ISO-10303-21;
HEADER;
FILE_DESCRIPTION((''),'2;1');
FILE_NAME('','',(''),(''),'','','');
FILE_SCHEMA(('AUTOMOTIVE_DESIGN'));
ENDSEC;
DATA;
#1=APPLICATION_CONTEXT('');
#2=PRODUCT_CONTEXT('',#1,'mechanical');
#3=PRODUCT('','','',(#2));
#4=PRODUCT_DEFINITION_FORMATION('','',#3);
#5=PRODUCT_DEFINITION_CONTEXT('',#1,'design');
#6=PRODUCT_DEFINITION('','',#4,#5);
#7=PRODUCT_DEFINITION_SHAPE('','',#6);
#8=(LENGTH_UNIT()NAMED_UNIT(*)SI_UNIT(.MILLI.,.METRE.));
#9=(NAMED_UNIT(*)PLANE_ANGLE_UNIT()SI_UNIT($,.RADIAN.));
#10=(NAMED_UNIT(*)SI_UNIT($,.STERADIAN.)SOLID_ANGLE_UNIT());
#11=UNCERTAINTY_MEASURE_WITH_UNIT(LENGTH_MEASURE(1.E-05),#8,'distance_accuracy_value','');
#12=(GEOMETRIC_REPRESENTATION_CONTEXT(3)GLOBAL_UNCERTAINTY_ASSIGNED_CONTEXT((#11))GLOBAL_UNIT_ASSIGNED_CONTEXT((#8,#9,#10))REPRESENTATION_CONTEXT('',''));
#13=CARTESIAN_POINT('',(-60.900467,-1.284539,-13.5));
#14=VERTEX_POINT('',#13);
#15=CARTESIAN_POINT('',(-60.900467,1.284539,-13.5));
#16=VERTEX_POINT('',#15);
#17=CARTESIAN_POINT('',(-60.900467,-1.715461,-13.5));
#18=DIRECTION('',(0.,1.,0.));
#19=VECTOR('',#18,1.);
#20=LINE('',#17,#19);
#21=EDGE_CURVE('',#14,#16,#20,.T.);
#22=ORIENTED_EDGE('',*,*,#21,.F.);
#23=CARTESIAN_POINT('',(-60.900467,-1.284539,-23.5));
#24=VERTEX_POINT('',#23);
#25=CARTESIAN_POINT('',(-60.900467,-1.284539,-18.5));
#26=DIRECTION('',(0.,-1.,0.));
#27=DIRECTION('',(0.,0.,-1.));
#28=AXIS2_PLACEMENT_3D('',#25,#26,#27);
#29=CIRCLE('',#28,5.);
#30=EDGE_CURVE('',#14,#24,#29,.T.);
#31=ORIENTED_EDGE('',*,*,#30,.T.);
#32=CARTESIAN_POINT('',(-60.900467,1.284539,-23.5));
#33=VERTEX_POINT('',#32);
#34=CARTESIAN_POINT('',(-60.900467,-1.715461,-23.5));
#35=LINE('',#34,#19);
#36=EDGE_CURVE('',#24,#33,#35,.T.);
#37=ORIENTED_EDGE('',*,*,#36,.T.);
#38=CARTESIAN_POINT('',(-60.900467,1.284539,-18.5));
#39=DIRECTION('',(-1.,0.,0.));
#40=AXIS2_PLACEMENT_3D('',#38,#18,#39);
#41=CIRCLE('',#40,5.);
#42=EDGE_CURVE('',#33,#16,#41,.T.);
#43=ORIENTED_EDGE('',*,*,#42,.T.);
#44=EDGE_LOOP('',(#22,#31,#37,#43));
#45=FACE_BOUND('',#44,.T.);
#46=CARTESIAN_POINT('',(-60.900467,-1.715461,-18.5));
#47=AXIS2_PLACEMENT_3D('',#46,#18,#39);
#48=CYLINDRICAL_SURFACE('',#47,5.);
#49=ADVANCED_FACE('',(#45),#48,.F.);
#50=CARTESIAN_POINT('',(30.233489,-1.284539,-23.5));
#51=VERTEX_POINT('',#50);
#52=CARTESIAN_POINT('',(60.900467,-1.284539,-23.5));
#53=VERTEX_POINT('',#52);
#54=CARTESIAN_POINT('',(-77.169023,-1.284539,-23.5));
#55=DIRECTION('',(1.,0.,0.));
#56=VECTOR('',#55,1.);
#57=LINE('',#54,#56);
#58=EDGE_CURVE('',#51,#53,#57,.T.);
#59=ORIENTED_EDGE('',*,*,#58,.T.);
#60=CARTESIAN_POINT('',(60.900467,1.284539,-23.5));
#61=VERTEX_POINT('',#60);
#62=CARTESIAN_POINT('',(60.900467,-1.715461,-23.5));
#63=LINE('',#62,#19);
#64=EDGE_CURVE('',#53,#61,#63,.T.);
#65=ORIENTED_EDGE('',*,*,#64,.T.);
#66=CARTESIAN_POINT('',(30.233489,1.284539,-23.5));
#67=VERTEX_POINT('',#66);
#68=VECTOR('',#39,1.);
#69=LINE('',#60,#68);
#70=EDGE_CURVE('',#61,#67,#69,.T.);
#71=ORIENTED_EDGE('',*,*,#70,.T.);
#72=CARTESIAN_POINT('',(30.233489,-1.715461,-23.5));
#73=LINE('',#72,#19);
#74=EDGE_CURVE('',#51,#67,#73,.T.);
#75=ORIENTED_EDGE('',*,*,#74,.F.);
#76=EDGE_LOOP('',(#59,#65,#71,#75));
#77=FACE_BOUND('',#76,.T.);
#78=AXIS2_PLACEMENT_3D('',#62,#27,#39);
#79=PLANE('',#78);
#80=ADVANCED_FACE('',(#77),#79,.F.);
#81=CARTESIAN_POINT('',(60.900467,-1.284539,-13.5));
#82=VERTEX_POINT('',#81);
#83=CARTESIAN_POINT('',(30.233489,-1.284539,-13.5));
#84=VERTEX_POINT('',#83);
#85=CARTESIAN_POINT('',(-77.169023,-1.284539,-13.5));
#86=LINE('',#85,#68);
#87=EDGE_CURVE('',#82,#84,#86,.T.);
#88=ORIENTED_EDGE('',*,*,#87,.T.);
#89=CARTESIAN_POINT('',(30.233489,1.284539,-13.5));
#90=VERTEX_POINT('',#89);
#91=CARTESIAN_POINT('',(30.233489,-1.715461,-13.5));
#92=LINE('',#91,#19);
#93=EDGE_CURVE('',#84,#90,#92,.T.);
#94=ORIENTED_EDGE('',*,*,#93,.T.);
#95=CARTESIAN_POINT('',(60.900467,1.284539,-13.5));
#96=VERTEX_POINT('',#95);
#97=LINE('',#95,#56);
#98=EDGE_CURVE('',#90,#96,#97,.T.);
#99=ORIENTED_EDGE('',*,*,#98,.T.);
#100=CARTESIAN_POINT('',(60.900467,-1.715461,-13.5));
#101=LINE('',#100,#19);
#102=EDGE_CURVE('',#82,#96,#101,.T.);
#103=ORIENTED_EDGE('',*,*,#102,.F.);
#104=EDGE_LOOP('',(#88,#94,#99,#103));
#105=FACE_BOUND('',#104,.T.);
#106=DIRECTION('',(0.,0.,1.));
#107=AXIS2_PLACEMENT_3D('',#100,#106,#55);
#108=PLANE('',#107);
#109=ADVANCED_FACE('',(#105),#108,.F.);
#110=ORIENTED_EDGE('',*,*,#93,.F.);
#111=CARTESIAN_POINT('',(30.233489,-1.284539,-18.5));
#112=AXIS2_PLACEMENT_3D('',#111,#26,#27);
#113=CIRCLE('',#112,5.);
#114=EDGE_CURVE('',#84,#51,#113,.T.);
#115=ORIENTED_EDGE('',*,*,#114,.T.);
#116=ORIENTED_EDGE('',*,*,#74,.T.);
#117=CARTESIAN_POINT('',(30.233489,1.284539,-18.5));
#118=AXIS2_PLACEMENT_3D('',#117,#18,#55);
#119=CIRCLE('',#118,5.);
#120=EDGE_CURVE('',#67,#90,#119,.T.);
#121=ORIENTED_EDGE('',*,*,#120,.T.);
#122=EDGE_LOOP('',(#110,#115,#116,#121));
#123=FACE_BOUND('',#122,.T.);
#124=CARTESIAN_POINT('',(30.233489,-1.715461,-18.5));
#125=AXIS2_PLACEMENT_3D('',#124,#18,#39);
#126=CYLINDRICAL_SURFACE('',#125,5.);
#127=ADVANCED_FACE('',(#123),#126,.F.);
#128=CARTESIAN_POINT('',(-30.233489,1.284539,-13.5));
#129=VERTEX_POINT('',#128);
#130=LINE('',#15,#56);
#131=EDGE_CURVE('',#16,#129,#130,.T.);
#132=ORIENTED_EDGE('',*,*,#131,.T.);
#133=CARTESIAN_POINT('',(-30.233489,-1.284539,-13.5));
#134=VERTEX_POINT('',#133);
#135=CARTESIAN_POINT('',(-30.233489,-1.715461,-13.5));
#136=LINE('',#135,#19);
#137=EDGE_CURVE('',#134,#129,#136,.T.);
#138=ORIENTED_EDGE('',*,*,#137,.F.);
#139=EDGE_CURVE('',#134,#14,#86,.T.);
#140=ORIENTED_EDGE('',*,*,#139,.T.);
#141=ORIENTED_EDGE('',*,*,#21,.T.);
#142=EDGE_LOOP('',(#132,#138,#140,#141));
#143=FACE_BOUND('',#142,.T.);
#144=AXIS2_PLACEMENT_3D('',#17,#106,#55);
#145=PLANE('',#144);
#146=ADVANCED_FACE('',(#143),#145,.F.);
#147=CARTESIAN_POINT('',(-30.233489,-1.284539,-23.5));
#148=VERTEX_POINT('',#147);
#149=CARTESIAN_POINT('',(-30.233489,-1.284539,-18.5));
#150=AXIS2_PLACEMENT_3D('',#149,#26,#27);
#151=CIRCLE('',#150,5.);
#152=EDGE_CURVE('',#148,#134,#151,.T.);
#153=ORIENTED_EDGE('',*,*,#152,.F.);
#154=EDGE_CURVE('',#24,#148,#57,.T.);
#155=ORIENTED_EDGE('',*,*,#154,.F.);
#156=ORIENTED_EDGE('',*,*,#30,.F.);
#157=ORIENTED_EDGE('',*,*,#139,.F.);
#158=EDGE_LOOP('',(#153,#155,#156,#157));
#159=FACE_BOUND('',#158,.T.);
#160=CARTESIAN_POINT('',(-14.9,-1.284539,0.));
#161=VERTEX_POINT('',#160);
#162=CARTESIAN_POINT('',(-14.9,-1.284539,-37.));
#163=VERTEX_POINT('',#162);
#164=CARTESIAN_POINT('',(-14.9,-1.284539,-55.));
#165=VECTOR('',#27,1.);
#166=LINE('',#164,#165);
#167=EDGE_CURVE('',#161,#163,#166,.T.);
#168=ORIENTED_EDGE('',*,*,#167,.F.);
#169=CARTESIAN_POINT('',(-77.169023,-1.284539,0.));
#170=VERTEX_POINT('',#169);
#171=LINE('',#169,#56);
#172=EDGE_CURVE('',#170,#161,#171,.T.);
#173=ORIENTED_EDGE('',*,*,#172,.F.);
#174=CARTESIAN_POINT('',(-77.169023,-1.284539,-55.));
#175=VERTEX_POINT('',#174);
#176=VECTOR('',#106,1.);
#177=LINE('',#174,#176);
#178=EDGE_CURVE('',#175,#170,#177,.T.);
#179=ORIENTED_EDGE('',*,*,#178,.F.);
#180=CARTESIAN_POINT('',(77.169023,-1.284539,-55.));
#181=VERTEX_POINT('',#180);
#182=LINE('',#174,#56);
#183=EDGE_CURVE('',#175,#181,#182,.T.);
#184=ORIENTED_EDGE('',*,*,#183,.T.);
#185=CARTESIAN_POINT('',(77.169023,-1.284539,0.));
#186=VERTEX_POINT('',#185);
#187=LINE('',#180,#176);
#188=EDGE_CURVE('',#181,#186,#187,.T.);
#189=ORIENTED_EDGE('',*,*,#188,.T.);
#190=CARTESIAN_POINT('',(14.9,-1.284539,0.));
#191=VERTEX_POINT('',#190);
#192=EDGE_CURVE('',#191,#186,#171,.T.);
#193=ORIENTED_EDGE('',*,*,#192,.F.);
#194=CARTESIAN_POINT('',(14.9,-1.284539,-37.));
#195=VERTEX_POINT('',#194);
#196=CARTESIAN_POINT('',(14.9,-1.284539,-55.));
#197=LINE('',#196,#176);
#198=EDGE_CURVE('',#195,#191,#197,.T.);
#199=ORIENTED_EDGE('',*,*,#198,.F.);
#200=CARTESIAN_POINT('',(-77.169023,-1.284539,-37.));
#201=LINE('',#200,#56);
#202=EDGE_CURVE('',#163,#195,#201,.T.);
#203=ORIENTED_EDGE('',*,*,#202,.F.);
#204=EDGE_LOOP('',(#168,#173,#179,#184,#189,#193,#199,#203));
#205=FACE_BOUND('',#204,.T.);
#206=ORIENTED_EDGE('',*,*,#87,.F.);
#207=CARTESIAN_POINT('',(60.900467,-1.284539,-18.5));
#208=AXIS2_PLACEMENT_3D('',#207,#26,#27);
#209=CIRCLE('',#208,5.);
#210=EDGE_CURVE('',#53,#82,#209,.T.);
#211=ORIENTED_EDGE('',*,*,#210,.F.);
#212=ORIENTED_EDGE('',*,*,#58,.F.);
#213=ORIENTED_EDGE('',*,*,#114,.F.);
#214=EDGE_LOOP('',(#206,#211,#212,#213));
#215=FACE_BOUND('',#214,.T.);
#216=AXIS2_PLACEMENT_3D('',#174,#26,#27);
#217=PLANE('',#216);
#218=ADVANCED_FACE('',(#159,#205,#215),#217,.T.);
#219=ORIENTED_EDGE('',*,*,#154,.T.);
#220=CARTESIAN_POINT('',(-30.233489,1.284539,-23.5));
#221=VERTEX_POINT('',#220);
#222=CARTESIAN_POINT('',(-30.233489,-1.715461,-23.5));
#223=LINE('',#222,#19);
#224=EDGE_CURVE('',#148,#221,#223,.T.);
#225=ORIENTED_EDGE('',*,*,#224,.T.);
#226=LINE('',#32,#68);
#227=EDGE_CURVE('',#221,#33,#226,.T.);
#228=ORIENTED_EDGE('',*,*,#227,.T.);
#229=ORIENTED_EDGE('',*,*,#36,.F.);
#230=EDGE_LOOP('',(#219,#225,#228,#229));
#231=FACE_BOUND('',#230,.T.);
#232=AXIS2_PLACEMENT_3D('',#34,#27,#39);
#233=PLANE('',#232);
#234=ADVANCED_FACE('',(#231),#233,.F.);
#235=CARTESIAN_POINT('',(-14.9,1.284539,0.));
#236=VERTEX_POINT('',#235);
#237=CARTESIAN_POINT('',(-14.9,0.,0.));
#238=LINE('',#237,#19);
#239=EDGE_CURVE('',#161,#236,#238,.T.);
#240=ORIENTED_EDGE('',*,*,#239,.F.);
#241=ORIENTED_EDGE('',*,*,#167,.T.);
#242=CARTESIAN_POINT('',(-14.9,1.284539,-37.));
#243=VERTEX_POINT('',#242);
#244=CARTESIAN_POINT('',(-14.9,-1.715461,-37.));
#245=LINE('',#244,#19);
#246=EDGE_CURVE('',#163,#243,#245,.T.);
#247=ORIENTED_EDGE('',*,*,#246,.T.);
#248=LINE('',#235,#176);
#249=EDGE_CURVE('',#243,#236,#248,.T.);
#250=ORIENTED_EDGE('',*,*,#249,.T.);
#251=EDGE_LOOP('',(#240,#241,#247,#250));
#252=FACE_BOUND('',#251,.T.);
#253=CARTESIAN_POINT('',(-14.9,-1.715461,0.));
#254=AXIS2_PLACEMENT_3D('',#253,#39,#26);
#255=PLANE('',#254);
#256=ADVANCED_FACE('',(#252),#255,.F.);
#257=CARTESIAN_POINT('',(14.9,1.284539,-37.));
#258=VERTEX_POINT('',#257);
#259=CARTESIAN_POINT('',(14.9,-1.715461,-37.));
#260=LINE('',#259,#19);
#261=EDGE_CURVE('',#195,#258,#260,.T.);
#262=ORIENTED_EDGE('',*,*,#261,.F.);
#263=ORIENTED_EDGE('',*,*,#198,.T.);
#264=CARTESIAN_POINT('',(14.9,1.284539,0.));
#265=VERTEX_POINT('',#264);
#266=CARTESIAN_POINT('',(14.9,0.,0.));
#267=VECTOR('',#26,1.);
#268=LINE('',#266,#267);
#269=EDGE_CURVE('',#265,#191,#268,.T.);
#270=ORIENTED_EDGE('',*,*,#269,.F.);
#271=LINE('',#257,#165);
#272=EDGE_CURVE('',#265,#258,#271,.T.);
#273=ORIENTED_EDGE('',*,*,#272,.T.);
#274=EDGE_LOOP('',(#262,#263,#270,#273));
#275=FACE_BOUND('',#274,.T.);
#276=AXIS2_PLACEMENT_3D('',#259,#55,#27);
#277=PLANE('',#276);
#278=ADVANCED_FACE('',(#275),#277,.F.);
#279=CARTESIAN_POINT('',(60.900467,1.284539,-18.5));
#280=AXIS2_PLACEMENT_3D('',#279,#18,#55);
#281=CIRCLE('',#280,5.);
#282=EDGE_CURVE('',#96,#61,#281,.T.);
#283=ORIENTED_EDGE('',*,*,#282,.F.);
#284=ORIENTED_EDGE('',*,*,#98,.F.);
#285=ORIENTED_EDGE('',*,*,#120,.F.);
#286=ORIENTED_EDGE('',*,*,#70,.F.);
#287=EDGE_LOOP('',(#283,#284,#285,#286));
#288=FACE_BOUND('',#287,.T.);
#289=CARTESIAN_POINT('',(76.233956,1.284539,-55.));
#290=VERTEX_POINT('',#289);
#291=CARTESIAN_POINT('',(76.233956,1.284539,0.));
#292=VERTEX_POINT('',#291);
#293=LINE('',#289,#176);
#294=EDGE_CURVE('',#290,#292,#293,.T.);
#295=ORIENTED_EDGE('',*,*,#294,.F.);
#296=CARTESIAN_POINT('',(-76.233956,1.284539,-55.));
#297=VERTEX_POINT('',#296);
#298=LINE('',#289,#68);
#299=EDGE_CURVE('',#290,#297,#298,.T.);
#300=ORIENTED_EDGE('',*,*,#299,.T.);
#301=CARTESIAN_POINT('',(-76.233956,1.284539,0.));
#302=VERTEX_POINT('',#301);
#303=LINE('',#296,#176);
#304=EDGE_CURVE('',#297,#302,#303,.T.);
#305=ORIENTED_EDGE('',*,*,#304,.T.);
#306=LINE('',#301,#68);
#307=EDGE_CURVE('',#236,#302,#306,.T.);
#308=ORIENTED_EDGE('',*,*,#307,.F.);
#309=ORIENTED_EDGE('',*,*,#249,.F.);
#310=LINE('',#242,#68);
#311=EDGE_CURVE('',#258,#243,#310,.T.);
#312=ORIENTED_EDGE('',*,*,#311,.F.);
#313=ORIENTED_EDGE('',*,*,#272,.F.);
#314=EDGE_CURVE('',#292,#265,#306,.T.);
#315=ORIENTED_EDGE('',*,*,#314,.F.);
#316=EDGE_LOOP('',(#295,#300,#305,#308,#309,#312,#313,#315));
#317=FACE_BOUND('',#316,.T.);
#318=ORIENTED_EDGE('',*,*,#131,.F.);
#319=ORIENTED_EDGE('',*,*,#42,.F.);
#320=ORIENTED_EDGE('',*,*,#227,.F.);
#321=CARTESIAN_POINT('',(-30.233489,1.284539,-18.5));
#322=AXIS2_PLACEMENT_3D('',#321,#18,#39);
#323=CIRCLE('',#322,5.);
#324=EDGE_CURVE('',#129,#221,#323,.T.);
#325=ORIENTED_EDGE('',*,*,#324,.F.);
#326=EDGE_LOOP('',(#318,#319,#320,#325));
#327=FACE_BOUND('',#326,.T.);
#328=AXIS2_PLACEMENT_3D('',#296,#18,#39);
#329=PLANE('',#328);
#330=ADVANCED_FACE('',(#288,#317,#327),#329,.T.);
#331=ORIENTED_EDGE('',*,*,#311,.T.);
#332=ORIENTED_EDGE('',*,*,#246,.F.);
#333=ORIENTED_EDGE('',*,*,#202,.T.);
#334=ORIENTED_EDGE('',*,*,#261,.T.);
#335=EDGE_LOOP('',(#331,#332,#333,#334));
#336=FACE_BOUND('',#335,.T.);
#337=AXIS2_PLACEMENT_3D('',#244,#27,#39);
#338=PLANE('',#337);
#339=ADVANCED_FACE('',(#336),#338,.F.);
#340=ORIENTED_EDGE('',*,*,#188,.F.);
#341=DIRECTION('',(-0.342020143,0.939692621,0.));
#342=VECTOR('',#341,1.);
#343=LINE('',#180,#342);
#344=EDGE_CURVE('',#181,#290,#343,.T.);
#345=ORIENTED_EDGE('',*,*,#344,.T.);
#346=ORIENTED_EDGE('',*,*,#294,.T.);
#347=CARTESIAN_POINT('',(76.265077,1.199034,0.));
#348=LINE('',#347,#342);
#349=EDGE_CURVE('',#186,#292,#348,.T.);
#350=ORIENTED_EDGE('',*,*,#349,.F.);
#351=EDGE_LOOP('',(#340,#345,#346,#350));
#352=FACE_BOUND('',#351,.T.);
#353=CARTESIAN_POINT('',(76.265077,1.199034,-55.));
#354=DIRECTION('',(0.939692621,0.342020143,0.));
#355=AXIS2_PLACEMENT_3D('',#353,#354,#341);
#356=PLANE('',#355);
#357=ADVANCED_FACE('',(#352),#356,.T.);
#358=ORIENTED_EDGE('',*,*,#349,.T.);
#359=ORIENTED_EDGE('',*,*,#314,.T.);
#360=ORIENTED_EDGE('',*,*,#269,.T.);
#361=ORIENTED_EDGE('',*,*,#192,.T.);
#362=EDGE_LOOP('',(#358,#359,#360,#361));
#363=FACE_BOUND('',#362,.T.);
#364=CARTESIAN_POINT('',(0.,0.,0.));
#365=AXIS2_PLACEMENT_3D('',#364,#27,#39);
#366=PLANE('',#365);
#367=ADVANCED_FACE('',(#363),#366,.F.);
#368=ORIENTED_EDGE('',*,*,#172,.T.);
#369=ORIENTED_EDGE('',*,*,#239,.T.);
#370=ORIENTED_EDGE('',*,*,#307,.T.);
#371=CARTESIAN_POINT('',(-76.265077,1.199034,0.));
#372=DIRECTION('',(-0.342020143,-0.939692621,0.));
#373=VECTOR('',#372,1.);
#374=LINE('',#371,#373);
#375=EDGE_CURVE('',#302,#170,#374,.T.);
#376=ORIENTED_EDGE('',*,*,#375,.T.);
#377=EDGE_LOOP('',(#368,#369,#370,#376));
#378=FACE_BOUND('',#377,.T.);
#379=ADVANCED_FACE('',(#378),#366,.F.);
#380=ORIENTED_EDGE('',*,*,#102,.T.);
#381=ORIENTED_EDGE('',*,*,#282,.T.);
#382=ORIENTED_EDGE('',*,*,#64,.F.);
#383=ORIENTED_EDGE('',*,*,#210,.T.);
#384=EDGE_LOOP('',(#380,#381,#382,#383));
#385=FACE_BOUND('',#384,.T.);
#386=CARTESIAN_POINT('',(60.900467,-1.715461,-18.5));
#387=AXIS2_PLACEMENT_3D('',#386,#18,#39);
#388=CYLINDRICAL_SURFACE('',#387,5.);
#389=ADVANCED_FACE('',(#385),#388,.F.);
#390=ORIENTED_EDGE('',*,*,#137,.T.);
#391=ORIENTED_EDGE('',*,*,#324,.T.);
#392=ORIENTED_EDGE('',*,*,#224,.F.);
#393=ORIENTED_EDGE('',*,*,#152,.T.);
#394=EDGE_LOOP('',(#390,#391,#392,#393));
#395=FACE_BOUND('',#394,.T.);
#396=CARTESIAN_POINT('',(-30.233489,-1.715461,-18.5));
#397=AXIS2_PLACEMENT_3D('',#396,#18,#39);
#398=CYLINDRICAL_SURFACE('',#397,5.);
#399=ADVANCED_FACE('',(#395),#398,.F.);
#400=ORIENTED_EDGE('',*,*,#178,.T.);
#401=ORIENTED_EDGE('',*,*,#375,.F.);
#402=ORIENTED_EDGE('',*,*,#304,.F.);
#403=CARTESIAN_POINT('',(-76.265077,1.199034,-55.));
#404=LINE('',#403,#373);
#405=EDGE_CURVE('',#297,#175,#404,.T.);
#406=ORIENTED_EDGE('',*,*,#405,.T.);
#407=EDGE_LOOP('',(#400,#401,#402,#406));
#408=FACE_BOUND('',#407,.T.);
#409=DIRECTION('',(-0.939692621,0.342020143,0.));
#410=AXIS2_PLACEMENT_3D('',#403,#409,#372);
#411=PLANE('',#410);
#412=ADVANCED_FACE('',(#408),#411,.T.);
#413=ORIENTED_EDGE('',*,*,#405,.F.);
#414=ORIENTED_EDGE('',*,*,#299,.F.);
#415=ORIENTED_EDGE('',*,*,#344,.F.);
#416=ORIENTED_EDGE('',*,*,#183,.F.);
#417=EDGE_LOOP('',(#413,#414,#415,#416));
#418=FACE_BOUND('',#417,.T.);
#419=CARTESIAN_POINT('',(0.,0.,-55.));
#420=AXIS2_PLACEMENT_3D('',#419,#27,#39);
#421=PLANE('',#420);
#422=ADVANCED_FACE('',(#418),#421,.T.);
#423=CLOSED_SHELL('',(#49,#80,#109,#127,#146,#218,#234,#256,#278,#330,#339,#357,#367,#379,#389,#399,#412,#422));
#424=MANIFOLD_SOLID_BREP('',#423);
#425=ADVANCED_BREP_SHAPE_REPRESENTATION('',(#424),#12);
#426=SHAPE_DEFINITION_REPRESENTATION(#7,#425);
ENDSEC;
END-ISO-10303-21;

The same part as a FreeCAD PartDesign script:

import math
import FreeCAD as App
import Part
import Sketcher
from FreeCAD import Vector
Q = App.Units.Quantity


def add_polygon(sketch, points):
    """Adds a closed chain of lines whose ends are joined by coincident constraints."""
    first, n = sketch.GeometryCount, len(points)
    for a, b in zip(points, points[1:] + points[:1]):
        sketch.addGeometry(Part.LineSegment(App.Vector(*a, 0), App.Vector(*b, 0)), False)
    for i in range(n):
        sketch.addConstraint(Sketcher.Constraint("Coincident", first + i, 2, first + (i + 1) % n, 1))

doc = App.newDocument("Part")
params = doc.addObject("Spreadsheet::Sheet", "Params")
for row, (alias, value) in enumerate([
    ("pad1_length", "55 mm"),
    ("sketch2_width", "29.8 mm"),
    ("pocket1_length", "3 mm"),
    ("sketch3_radius", "5 mm"),
    ("pocket2_length", "3 mm"),
], start=1):
    params.set(f"A{row}", alias)
    params.set(f"B{row}", "=" + value)
    params.setAlias(f"B{row}", alias)

body = doc.addObject("PartDesign::Body", "Body")

# Sketch on XY plane
sketch1 = body.newObject("Sketcher::SketchObject", "Sketch")
sketch1.AttachmentSupport = (doc.getObject("XY_Plane"), [""])
sketch1.MapMode = "FlatFace"
add_polygon(sketch1, [(-76.27, 1.2), (-77.17, -1.28), (77.17, -1.28), (76.27, 1.2), (76.23, 1.28), (-76.23, 1.28)])  # lines 0-5
sketch1.addConstraint([
    Sketcher.Constraint("Horizontal", 1),
    Sketcher.Constraint("Horizontal", 4),
    Sketcher.Constraint("Symmetric", 2, 2, 5, 2, -2),
    Sketcher.Constraint("Parallel", 2, 3),
    Sketcher.Constraint("Parallel", 0, 5),
    Sketcher.Constraint("Equal", 0, 2),
    Sketcher.Constraint("Angle", 0, Q("-110 deg")),
    Sketcher.Constraint("DistanceX", 4, 2, 4, 1, 152.467911),
    Sketcher.Constraint("DistanceX", 0, 2, 2, 2, 153.4341),
    Sketcher.Constraint("DistanceX", 1, 1, 1, 2, 154.338047),
    Sketcher.Constraint("DistanceY", 0, 2, -1, 1, 1.284539),
])
pad1 = body.newObject("PartDesign::Pad", "Pad")
pad1.Profile = sketch1
pad1.setExpression("Length", "Params.pad1_length")
pad1.Reversed = True

# Sketch on XZ plane
sketch2 = body.newObject("Sketcher::SketchObject", "Sketch001")
sketch2.AttachmentSupport = (doc.getObject("XZ_Plane"), [""])
sketch2.MapMode = "FlatFace"
sketch2.AttachmentOffset = App.Placement(Vector(0, 0, -1.284539), App.Rotation())
add_polygon(sketch2, [(-15, -37), (-15, 3), (15, 3), (15, -37)])  # lines 0-3
sketch2.addConstraint([
    Sketcher.Constraint("Vertical", 0),
    Sketcher.Constraint("Horizontal", 1),
    Sketcher.Constraint("Vertical", 2),
    Sketcher.Constraint("Horizontal", 3),
    Sketcher.Constraint("DistanceX", 1, 1, 1, 2, 29.8),
    Sketcher.Constraint("DistanceY", 2, 2, -1, 1, 37.0),
    Sketcher.Constraint("DistanceX", 0, 2, -1, 1, 14.9),
    Sketcher.Constraint("DistanceY", 0, 1, 0, 2, 39.514676),
])
sketch2.setExpression("Constraints[8]", "Params.sketch2_width")
pocket1 = body.newObject("PartDesign::Pocket", "Pocket")
pocket1.Profile = sketch2
pocket1.setExpression("Length", "Params.pocket1_length")
pocket1.Reversed = True

# Sketch on XZ plane
sketch3 = body.newObject("Sketcher::SketchObject", "Sketch002")
sketch3.AttachmentSupport = (doc.getObject("XZ_Plane"), [""])
sketch3.MapMode = "FlatFace"
sketch3.AttachmentOffset = App.Placement(Vector(0, 0, -1.284539), App.Rotation())
sketch3.addGeometry([
    Part.LineSegment(Vector(-30, -24, 0), Vector(-61, -24, 0)),  # 0
    Part.ArcOfCircle(Part.Circle(Vector(-61, -18, 0), Vector(0, 0, 1), 5), math.radians(90), math.radians(270)),  # 1
    Part.LineSegment(Vector(-61, -14, 0), Vector(-30, -14, 0)),  # 2
    Part.ArcOfCircle(Part.Circle(Vector(-30, -18, 0), Vector(0, 0, 1), 5), math.radians(-90), math.radians(90)),  # 3
    Part.LineSegment(Vector(30, -14, 0), Vector(61, -14, 0)),  # 4
    Part.ArcOfCircle(Part.Circle(Vector(61, -18, 0), Vector(0, 0, 1), 5), math.radians(-90), math.radians(90)),  # 5
    Part.LineSegment(Vector(61, -24, 0), Vector(30, -24, 0)),  # 6
    Part.ArcOfCircle(Part.Circle(Vector(30, -18, 0), Vector(0, 0, 1), 5), math.radians(90), math.radians(270)),  # 7
], False)
sketch3.addConstraint([
    Sketcher.Constraint("Tangent", 0, 2, 1, 2),
    Sketcher.Constraint("Tangent", 1, 1, 2, 1),
    Sketcher.Constraint("Tangent", 2, 2, 3, 2),
    Sketcher.Constraint("Tangent", 3, 1, 0, 1),
    Sketcher.Constraint("Tangent", 4, 2, 5, 2),
    Sketcher.Constraint("Tangent", 5, 1, 6, 1),
    Sketcher.Constraint("Tangent", 6, 2, 7, 2),
    Sketcher.Constraint("Tangent", 7, 1, 4, 1),
    Sketcher.Constraint("Horizontal", 0),
    Sketcher.Constraint("Horizontal", 2),
    Sketcher.Constraint("Horizontal", 4),
    Sketcher.Constraint("Horizontal", 6),
    Sketcher.Constraint("Equal", 3, 5),
    Sketcher.Constraint("Symmetric", 1, 3, 5, 3, -2),
    Sketcher.Constraint("Equal", 2, 4),
    Sketcher.Constraint("Radius", 1, 5.0),
    Sketcher.Constraint("DistanceY", 1, 3, -1, 1, 18.5),
    Sketcher.Constraint("DistanceX", 0, 2, 0, 1, 30.666978),
    Sketcher.Constraint("DistanceX", 3, 3, -1, 1, 30.233489),
])
sketch3.setExpression("Constraints[15]", "Params.sketch3_radius")
pocket2 = body.newObject("PartDesign::Pocket", "Pocket001")
pocket2.Profile = sketch3
pocket2.setExpression("Length", "Params.pocket2_length")
pocket2.Reversed = True

doc.recompute()
